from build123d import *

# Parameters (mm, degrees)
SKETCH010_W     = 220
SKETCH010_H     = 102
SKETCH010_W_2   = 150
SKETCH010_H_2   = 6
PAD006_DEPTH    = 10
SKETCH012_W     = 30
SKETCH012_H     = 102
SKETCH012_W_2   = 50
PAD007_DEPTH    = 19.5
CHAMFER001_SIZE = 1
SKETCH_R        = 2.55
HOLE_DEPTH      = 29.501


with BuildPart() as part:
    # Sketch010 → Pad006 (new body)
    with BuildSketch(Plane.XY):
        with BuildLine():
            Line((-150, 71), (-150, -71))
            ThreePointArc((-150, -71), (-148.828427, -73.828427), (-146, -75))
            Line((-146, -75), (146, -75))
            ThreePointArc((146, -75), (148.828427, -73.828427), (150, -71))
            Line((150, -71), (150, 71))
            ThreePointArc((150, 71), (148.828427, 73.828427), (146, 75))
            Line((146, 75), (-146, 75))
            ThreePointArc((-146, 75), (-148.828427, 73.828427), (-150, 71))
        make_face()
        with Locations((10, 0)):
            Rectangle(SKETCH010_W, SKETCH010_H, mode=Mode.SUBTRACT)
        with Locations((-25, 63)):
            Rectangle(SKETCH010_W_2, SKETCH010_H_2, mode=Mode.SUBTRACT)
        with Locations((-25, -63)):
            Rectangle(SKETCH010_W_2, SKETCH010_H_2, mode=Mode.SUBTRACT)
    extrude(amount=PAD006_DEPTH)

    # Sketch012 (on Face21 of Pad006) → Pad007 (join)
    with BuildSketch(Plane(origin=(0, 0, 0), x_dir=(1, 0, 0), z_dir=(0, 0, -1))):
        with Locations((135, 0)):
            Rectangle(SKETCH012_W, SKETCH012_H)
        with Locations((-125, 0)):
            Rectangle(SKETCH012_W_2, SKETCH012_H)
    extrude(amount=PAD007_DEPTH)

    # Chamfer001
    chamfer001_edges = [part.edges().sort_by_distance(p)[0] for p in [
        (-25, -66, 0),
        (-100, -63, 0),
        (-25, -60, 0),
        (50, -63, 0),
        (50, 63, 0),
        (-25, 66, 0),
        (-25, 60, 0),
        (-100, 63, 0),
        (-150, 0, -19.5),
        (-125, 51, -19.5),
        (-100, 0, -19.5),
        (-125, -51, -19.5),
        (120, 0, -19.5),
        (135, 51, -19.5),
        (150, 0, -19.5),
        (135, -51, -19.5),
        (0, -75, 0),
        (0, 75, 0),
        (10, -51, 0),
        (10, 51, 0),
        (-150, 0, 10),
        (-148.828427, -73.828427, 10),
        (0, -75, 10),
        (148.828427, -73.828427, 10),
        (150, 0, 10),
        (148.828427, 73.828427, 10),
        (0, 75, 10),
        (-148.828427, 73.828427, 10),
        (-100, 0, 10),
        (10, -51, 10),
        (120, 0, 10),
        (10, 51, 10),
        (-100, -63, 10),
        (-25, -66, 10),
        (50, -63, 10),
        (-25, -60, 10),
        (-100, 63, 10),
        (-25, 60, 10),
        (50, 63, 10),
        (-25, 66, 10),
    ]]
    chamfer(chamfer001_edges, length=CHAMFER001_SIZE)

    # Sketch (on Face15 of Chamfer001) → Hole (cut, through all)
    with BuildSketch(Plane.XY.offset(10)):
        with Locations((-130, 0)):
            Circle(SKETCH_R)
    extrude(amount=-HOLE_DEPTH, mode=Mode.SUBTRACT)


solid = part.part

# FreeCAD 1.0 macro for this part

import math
import FreeCAD as App
import Part
import Sketcher


def edges_at(feature, points):
    """Names of the edges that pass closest to the given points."""
    edges = feature.Shape.Edges
    near = lambda p: min(range(len(edges)), key=lambda i: edges[i].distToShape(Part.Vertex(*p))[0])
    return sorted({f"Edge{near(p) + 1}" for p in points})

doc = App.newDocument("Part")
body = doc.addObject("PartDesign::Body", "Body")

# Sketch on XY plane
sketch1 = doc.addObject("Sketcher::SketchObject", "Sketch")
body.addObject(sketch1)
sketch1.AttachmentSupport = (doc.XY_Plane, [""])
sketch1.MapMode = "FlatFace"
sketch1.addGeometry(Part.LineSegment(App.Vector(-150, 71, 0), App.Vector(-150, -71, 0)), False)
sketch1.addGeometry(Part.ArcOfCircle(Part.Circle(App.Vector(-146, -71, 0), App.Vector(0, 0, 1), 4), math.radians(-179.999994), math.radians(-90.000006)), False)
sketch1.addGeometry(Part.LineSegment(App.Vector(-146, -75, 0), App.Vector(146, -75, 0)), False)
sketch1.addGeometry(Part.ArcOfCircle(Part.Circle(App.Vector(146, -71, 0), App.Vector(0, 0, 1), 4), math.radians(-89.999994), math.radians(-0.000006)), False)
sketch1.addGeometry(Part.LineSegment(App.Vector(150, -71, 0), App.Vector(150, 71, 0)), False)
sketch1.addGeometry(Part.ArcOfCircle(Part.Circle(App.Vector(146, 71, 0), App.Vector(0, 0, 1), 4), math.radians(0.000006), math.radians(89.999994)), False)
sketch1.addGeometry(Part.LineSegment(App.Vector(146, 75, 0), App.Vector(-146, 75, 0)), False)
sketch1.addGeometry(Part.ArcOfCircle(Part.Circle(App.Vector(-146, 71, 0), App.Vector(0, 0, 1), 4), math.radians(90.000006), math.radians(179.999994)), False)
sketch1.addGeometry(Part.LineSegment(App.Vector(50, -66, 0), App.Vector(-100, -66, 0)), False)
sketch1.addGeometry(Part.LineSegment(App.Vector(-100, -66, 0), App.Vector(-100, -60, 0)), False)
sketch1.addGeometry(Part.LineSegment(App.Vector(-100, -60, 0), App.Vector(50, -60, 0)), False)
sketch1.addGeometry(Part.LineSegment(App.Vector(50, -60, 0), App.Vector(50, -66, 0)), False)
sketch1.addGeometry(Part.LineSegment(App.Vector(50, 60, 0), App.Vector(-100, 60, 0)), False)
sketch1.addGeometry(Part.LineSegment(App.Vector(-100, 60, 0), App.Vector(-100, 66, 0)), False)
sketch1.addGeometry(Part.LineSegment(App.Vector(-100, 66, 0), App.Vector(50, 66, 0)), False)
sketch1.addGeometry(Part.LineSegment(App.Vector(50, 66, 0), App.Vector(50, 60, 0)), False)
sketch1.addGeometry(Part.LineSegment(App.Vector(120, -51, 0), App.Vector(-100, -51, 0)), False)
sketch1.addGeometry(Part.LineSegment(App.Vector(-100, -51, 0), App.Vector(-100, 51, 0)), False)
sketch1.addGeometry(Part.LineSegment(App.Vector(-100, 51, 0), App.Vector(120, 51, 0)), False)
sketch1.addGeometry(Part.LineSegment(App.Vector(120, 51, 0), App.Vector(120, -51, 0)), False)
sketch1.addConstraint(Sketcher.Constraint("Tangent", 0, 2, 1, 1))
sketch1.addConstraint(Sketcher.Constraint("Tangent", 1, 2, 2, 1))
sketch1.addConstraint(Sketcher.Constraint("Tangent", 2, 2, 3, 1))
sketch1.addConstraint(Sketcher.Constraint("Tangent", 3, 2, 4, 1))
sketch1.addConstraint(Sketcher.Constraint("Tangent", 4, 2, 5, 1))
sketch1.addConstraint(Sketcher.Constraint("Tangent", 5, 2, 6, 1))
sketch1.addConstraint(Sketcher.Constraint("Tangent", 6, 2, 7, 1))
sketch1.addConstraint(Sketcher.Constraint("Tangent", 7, 2, 0, 1))
sketch1.addConstraint(Sketcher.Constraint("Coincident", 8, 2, 9, 1))
sketch1.addConstraint(Sketcher.Constraint("Coincident", 9, 2, 10, 1))
sketch1.addConstraint(Sketcher.Constraint("Coincident", 10, 2, 11, 1))
sketch1.addConstraint(Sketcher.Constraint("Coincident", 11, 2, 8, 1))
sketch1.addConstraint(Sketcher.Constraint("Coincident", 12, 2, 13, 1))
sketch1.addConstraint(Sketcher.Constraint("Coincident", 13, 2, 14, 1))
sketch1.addConstraint(Sketcher.Constraint("Coincident", 14, 2, 15, 1))
sketch1.addConstraint(Sketcher.Constraint("Coincident", 15, 2, 12, 1))
sketch1.addConstraint(Sketcher.Constraint("Coincident", 16, 2, 17, 1))
sketch1.addConstraint(Sketcher.Constraint("Coincident", 17, 2, 18, 1))
sketch1.addConstraint(Sketcher.Constraint("Coincident", 18, 2, 19, 1))
sketch1.addConstraint(Sketcher.Constraint("Coincident", 19, 2, 16, 1))
sketch1.addConstraint(Sketcher.Constraint("Vertical", 0))
sketch1.addConstraint(Sketcher.Constraint("Horizontal", 2))
sketch1.addConstraint(Sketcher.Constraint("Vertical", 4))
sketch1.addConstraint(Sketcher.Constraint("Horizontal", 6))
sketch1.addConstraint(Sketcher.Constraint("Horizontal", 8))
sketch1.addConstraint(Sketcher.Constraint("Vertical", 9))
sketch1.addConstraint(Sketcher.Constraint("Horizontal", 10))
sketch1.addConstraint(Sketcher.Constraint("Vertical", 11))
sketch1.addConstraint(Sketcher.Constraint("Horizontal", 12))
sketch1.addConstraint(Sketcher.Constraint("Vertical", 13))
sketch1.addConstraint(Sketcher.Constraint("Horizontal", 14))
sketch1.addConstraint(Sketcher.Constraint("Vertical", 15))
sketch1.addConstraint(Sketcher.Constraint("Horizontal", 16))
sketch1.addConstraint(Sketcher.Constraint("Vertical", 17))
sketch1.addConstraint(Sketcher.Constraint("Horizontal", 18))
sketch1.addConstraint(Sketcher.Constraint("Vertical", 19))
sketch1.addConstraint(Sketcher.Constraint("Equal", 1, 3))
sketch1.addConstraint(Sketcher.Constraint("Equal", 3, 5))
sketch1.addConstraint(Sketcher.Constraint("Equal", 5, 7))
sketch1.addConstraint(Sketcher.Constraint("Symmetric", 1, 3, 5, 3, -1, 1))
sketch1.addConstraint(Sketcher.Constraint("Symmetric", 9, 2, 12, 2, -1))
sketch1.addConstraint(Sketcher.Constraint("Symmetric", 11, 2, 14, 2, -1))
sketch1.addConstraint(Sketcher.Constraint("Vertical", 13, 2, 16, 2))
sketch1.addConstraint(Sketcher.Constraint("Radius", 1, 4.0))
sketch1.addConstraint(Sketcher.Constraint("DistanceX", 2, 1, 2, 2, 292.0))
sketch1.addConstraint(Sketcher.Constraint("DistanceX", 8, 2, 8, 1, 150.0))
sketch1.addConstraint(Sketcher.Constraint("DistanceX", 16, 2, 16, 1, 220.0))
sketch1.addConstraint(Sketcher.Constraint("DistanceY", 0, 2, 0, 1, 142.0))
sketch1.addConstraint(Sketcher.Constraint("DistanceY", 9, 1, 9, 2, 6.0))
sketch1.addConstraint(Sketcher.Constraint("DistanceY", 17, 1, 17, 2, 102.0))
sketch1.addConstraint(Sketcher.Constraint("DistanceX", 8, 2, -1, 1, 100.0))
sketch1.addConstraint(Sketcher.Constraint("DistanceY", 8, 2, -1, 1, 66.0))
sketch1.addConstraint(Sketcher.Constraint("DistanceY", 16, 2, -1, 1, 51.0))
pad1 = doc.addObject("PartDesign::Pad", "Pad")
body.addObject(pad1)
pad1.Profile = sketch1
pad1.Length = 10

# Sketch on XY plane
sketch2 = doc.addObject("Sketcher::SketchObject", "Sketch001")
body.addObject(sketch2)
sketch2.AttachmentSupport = (doc.XY_Plane, [""])
sketch2.MapMode = "FlatFace"
sketch2.addGeometry(Part.LineSegment(App.Vector(120, -51, 0), App.Vector(120, 51, 0)), False)
sketch2.addGeometry(Part.LineSegment(App.Vector(120, 51, 0), App.Vector(150, 51, 0)), False)
sketch2.addGeometry(Part.LineSegment(App.Vector(150, 51, 0), App.Vector(150, -51, 0)), False)
sketch2.addGeometry(Part.LineSegment(App.Vector(150, -51, 0), App.Vector(120, -51, 0)), False)
sketch2.addGeometry(Part.LineSegment(App.Vector(-150, -51, 0), App.Vector(-150, 51, 0)), False)
sketch2.addGeometry(Part.LineSegment(App.Vector(-150, 51, 0), App.Vector(-100, 51, 0)), False)
sketch2.addGeometry(Part.LineSegment(App.Vector(-100, 51, 0), App.Vector(-100, -51, 0)), False)
sketch2.addGeometry(Part.LineSegment(App.Vector(-100, -51, 0), App.Vector(-150, -51, 0)), False)
sketch2.addConstraint(Sketcher.Constraint("Coincident", 0, 2, 1, 1))
sketch2.addConstraint(Sketcher.Constraint("Coincident", 1, 2, 2, 1))
sketch2.addConstraint(Sketcher.Constraint("Coincident", 2, 2, 3, 1))
sketch2.addConstraint(Sketcher.Constraint("Coincident", 3, 2, 0, 1))
sketch2.addConstraint(Sketcher.Constraint("Coincident", 4, 2, 5, 1))
sketch2.addConstraint(Sketcher.Constraint("Coincident", 5, 2, 6, 1))
sketch2.addConstraint(Sketcher.Constraint("Coincident", 6, 2, 7, 1))
sketch2.addConstraint(Sketcher.Constraint("Coincident", 7, 2, 4, 1))
sketch2.addConstraint(Sketcher.Constraint("Vertical", 0))
sketch2.addConstraint(Sketcher.Constraint("Horizontal", 1))
sketch2.addConstraint(Sketcher.Constraint("Vertical", 2))
sketch2.addConstraint(Sketcher.Constraint("Horizontal", 3))
sketch2.addConstraint(Sketcher.Constraint("Vertical", 4))
sketch2.addConstraint(Sketcher.Constraint("Horizontal", 5))
sketch2.addConstraint(Sketcher.Constraint("Vertical", 6))
sketch2.addConstraint(Sketcher.Constraint("Horizontal", 7))
sketch2.addConstraint(Sketcher.Constraint("Symmetric", 2, 2, 4, 2, -1, 1))
sketch2.addConstraint(Sketcher.Constraint("Horizontal", 1, 2, 4, 2))
sketch2.addConstraint(Sketcher.Constraint("Horizontal", 3, 2, 6, 2))
sketch2.addConstraint(Sketcher.Constraint("DistanceX", 1, 1, 1, 2, 30.0))
sketch2.addConstraint(Sketcher.Constraint("DistanceX", 5, 1, 5, 2, 50.0))
sketch2.addConstraint(Sketcher.Constraint("DistanceY", 0, 1, 0, 2, 102.0))
sketch2.addConstraint(Sketcher.Constraint("DistanceX", -1, 1, 0, 2, 120.0))
pad2 = doc.addObject("PartDesign::Pad", "Pad001")
body.addObject(pad2)
pad2.Profile = sketch2
pad2.Length = 19.5
pad2.Reversed = True
doc.recompute()

chamfer = doc.addObject("PartDesign::Chamfer", "Chamfer")
body.addObject(chamfer)
chamfer.Base = (pad2, edges_at(pad2, [
    (-25, -66, 0),
    (-100, -63, 0),
    (-25, -60, 0),
    (50, -63, 0),
    (50, 63, 0),
    (-25, 66, 0),
    (-25, 60, 0),
    (-100, 63, 0),
    (-150, 0, -19.5),
    (-125, 51, -19.5),
    (-100, 0, -19.5),
    (-125, -51, -19.5),
    (120, 0, -19.5),
    (135, 51, -19.5),
    (150, 0, -19.5),
    (135, -51, -19.5),
    (0, -75, 0),
    (0, 75, 0),
    (10, -51, 0),
    (10, 51, 0),
    (-150, 0, 10),
    (-148.828, -73.828, 10),
    (0, -75, 10),
    (148.828, -73.828, 10),
    (150, 0, 10),
    (148.828, 73.828, 10),
    (0, 75, 10),
    (-148.828, 73.828, 10),
    (-100, 0, 10),
    (10, -51, 10),
    (120, 0, 10),
    (10, 51, 10),
    (-100, -63, 10),
    (-25, -66, 10),
    (50, -63, 10),
    (-25, -60, 10),
    (-100, 63, 10),
    (-25, 60, 10),
    (50, 63, 10),
    (-25, 66, 10),
]))
chamfer.Size = 1

# Sketch on XY plane
sketch3 = doc.addObject("Sketcher::SketchObject", "Sketch002")
body.addObject(sketch3)
sketch3.AttachmentSupport = (doc.XY_Plane, [""])
sketch3.MapMode = "FlatFace"
sketch3.AttachmentOffset = App.Placement(App.Vector(0, 0, 10), App.Rotation())
sketch3.addGeometry(Part.Circle(App.Vector(-130, 0, 0), App.Vector(0, 0, 1), 2.55), False)
sketch3.addConstraint(Sketcher.Constraint("PointOnObject", 0, 3, -1))
sketch3.addConstraint(Sketcher.Constraint("Diameter", 0, 5.1))
sketch3.addConstraint(Sketcher.Constraint("DistanceX", 0, 3, -1, 1, 130.0))
pocket1 = doc.addObject("PartDesign::Pocket", "Pocket")
body.addObject(pocket1)
pocket1.Profile = sketch3
pocket1.Type = "ThroughAll"

doc.recompute()
